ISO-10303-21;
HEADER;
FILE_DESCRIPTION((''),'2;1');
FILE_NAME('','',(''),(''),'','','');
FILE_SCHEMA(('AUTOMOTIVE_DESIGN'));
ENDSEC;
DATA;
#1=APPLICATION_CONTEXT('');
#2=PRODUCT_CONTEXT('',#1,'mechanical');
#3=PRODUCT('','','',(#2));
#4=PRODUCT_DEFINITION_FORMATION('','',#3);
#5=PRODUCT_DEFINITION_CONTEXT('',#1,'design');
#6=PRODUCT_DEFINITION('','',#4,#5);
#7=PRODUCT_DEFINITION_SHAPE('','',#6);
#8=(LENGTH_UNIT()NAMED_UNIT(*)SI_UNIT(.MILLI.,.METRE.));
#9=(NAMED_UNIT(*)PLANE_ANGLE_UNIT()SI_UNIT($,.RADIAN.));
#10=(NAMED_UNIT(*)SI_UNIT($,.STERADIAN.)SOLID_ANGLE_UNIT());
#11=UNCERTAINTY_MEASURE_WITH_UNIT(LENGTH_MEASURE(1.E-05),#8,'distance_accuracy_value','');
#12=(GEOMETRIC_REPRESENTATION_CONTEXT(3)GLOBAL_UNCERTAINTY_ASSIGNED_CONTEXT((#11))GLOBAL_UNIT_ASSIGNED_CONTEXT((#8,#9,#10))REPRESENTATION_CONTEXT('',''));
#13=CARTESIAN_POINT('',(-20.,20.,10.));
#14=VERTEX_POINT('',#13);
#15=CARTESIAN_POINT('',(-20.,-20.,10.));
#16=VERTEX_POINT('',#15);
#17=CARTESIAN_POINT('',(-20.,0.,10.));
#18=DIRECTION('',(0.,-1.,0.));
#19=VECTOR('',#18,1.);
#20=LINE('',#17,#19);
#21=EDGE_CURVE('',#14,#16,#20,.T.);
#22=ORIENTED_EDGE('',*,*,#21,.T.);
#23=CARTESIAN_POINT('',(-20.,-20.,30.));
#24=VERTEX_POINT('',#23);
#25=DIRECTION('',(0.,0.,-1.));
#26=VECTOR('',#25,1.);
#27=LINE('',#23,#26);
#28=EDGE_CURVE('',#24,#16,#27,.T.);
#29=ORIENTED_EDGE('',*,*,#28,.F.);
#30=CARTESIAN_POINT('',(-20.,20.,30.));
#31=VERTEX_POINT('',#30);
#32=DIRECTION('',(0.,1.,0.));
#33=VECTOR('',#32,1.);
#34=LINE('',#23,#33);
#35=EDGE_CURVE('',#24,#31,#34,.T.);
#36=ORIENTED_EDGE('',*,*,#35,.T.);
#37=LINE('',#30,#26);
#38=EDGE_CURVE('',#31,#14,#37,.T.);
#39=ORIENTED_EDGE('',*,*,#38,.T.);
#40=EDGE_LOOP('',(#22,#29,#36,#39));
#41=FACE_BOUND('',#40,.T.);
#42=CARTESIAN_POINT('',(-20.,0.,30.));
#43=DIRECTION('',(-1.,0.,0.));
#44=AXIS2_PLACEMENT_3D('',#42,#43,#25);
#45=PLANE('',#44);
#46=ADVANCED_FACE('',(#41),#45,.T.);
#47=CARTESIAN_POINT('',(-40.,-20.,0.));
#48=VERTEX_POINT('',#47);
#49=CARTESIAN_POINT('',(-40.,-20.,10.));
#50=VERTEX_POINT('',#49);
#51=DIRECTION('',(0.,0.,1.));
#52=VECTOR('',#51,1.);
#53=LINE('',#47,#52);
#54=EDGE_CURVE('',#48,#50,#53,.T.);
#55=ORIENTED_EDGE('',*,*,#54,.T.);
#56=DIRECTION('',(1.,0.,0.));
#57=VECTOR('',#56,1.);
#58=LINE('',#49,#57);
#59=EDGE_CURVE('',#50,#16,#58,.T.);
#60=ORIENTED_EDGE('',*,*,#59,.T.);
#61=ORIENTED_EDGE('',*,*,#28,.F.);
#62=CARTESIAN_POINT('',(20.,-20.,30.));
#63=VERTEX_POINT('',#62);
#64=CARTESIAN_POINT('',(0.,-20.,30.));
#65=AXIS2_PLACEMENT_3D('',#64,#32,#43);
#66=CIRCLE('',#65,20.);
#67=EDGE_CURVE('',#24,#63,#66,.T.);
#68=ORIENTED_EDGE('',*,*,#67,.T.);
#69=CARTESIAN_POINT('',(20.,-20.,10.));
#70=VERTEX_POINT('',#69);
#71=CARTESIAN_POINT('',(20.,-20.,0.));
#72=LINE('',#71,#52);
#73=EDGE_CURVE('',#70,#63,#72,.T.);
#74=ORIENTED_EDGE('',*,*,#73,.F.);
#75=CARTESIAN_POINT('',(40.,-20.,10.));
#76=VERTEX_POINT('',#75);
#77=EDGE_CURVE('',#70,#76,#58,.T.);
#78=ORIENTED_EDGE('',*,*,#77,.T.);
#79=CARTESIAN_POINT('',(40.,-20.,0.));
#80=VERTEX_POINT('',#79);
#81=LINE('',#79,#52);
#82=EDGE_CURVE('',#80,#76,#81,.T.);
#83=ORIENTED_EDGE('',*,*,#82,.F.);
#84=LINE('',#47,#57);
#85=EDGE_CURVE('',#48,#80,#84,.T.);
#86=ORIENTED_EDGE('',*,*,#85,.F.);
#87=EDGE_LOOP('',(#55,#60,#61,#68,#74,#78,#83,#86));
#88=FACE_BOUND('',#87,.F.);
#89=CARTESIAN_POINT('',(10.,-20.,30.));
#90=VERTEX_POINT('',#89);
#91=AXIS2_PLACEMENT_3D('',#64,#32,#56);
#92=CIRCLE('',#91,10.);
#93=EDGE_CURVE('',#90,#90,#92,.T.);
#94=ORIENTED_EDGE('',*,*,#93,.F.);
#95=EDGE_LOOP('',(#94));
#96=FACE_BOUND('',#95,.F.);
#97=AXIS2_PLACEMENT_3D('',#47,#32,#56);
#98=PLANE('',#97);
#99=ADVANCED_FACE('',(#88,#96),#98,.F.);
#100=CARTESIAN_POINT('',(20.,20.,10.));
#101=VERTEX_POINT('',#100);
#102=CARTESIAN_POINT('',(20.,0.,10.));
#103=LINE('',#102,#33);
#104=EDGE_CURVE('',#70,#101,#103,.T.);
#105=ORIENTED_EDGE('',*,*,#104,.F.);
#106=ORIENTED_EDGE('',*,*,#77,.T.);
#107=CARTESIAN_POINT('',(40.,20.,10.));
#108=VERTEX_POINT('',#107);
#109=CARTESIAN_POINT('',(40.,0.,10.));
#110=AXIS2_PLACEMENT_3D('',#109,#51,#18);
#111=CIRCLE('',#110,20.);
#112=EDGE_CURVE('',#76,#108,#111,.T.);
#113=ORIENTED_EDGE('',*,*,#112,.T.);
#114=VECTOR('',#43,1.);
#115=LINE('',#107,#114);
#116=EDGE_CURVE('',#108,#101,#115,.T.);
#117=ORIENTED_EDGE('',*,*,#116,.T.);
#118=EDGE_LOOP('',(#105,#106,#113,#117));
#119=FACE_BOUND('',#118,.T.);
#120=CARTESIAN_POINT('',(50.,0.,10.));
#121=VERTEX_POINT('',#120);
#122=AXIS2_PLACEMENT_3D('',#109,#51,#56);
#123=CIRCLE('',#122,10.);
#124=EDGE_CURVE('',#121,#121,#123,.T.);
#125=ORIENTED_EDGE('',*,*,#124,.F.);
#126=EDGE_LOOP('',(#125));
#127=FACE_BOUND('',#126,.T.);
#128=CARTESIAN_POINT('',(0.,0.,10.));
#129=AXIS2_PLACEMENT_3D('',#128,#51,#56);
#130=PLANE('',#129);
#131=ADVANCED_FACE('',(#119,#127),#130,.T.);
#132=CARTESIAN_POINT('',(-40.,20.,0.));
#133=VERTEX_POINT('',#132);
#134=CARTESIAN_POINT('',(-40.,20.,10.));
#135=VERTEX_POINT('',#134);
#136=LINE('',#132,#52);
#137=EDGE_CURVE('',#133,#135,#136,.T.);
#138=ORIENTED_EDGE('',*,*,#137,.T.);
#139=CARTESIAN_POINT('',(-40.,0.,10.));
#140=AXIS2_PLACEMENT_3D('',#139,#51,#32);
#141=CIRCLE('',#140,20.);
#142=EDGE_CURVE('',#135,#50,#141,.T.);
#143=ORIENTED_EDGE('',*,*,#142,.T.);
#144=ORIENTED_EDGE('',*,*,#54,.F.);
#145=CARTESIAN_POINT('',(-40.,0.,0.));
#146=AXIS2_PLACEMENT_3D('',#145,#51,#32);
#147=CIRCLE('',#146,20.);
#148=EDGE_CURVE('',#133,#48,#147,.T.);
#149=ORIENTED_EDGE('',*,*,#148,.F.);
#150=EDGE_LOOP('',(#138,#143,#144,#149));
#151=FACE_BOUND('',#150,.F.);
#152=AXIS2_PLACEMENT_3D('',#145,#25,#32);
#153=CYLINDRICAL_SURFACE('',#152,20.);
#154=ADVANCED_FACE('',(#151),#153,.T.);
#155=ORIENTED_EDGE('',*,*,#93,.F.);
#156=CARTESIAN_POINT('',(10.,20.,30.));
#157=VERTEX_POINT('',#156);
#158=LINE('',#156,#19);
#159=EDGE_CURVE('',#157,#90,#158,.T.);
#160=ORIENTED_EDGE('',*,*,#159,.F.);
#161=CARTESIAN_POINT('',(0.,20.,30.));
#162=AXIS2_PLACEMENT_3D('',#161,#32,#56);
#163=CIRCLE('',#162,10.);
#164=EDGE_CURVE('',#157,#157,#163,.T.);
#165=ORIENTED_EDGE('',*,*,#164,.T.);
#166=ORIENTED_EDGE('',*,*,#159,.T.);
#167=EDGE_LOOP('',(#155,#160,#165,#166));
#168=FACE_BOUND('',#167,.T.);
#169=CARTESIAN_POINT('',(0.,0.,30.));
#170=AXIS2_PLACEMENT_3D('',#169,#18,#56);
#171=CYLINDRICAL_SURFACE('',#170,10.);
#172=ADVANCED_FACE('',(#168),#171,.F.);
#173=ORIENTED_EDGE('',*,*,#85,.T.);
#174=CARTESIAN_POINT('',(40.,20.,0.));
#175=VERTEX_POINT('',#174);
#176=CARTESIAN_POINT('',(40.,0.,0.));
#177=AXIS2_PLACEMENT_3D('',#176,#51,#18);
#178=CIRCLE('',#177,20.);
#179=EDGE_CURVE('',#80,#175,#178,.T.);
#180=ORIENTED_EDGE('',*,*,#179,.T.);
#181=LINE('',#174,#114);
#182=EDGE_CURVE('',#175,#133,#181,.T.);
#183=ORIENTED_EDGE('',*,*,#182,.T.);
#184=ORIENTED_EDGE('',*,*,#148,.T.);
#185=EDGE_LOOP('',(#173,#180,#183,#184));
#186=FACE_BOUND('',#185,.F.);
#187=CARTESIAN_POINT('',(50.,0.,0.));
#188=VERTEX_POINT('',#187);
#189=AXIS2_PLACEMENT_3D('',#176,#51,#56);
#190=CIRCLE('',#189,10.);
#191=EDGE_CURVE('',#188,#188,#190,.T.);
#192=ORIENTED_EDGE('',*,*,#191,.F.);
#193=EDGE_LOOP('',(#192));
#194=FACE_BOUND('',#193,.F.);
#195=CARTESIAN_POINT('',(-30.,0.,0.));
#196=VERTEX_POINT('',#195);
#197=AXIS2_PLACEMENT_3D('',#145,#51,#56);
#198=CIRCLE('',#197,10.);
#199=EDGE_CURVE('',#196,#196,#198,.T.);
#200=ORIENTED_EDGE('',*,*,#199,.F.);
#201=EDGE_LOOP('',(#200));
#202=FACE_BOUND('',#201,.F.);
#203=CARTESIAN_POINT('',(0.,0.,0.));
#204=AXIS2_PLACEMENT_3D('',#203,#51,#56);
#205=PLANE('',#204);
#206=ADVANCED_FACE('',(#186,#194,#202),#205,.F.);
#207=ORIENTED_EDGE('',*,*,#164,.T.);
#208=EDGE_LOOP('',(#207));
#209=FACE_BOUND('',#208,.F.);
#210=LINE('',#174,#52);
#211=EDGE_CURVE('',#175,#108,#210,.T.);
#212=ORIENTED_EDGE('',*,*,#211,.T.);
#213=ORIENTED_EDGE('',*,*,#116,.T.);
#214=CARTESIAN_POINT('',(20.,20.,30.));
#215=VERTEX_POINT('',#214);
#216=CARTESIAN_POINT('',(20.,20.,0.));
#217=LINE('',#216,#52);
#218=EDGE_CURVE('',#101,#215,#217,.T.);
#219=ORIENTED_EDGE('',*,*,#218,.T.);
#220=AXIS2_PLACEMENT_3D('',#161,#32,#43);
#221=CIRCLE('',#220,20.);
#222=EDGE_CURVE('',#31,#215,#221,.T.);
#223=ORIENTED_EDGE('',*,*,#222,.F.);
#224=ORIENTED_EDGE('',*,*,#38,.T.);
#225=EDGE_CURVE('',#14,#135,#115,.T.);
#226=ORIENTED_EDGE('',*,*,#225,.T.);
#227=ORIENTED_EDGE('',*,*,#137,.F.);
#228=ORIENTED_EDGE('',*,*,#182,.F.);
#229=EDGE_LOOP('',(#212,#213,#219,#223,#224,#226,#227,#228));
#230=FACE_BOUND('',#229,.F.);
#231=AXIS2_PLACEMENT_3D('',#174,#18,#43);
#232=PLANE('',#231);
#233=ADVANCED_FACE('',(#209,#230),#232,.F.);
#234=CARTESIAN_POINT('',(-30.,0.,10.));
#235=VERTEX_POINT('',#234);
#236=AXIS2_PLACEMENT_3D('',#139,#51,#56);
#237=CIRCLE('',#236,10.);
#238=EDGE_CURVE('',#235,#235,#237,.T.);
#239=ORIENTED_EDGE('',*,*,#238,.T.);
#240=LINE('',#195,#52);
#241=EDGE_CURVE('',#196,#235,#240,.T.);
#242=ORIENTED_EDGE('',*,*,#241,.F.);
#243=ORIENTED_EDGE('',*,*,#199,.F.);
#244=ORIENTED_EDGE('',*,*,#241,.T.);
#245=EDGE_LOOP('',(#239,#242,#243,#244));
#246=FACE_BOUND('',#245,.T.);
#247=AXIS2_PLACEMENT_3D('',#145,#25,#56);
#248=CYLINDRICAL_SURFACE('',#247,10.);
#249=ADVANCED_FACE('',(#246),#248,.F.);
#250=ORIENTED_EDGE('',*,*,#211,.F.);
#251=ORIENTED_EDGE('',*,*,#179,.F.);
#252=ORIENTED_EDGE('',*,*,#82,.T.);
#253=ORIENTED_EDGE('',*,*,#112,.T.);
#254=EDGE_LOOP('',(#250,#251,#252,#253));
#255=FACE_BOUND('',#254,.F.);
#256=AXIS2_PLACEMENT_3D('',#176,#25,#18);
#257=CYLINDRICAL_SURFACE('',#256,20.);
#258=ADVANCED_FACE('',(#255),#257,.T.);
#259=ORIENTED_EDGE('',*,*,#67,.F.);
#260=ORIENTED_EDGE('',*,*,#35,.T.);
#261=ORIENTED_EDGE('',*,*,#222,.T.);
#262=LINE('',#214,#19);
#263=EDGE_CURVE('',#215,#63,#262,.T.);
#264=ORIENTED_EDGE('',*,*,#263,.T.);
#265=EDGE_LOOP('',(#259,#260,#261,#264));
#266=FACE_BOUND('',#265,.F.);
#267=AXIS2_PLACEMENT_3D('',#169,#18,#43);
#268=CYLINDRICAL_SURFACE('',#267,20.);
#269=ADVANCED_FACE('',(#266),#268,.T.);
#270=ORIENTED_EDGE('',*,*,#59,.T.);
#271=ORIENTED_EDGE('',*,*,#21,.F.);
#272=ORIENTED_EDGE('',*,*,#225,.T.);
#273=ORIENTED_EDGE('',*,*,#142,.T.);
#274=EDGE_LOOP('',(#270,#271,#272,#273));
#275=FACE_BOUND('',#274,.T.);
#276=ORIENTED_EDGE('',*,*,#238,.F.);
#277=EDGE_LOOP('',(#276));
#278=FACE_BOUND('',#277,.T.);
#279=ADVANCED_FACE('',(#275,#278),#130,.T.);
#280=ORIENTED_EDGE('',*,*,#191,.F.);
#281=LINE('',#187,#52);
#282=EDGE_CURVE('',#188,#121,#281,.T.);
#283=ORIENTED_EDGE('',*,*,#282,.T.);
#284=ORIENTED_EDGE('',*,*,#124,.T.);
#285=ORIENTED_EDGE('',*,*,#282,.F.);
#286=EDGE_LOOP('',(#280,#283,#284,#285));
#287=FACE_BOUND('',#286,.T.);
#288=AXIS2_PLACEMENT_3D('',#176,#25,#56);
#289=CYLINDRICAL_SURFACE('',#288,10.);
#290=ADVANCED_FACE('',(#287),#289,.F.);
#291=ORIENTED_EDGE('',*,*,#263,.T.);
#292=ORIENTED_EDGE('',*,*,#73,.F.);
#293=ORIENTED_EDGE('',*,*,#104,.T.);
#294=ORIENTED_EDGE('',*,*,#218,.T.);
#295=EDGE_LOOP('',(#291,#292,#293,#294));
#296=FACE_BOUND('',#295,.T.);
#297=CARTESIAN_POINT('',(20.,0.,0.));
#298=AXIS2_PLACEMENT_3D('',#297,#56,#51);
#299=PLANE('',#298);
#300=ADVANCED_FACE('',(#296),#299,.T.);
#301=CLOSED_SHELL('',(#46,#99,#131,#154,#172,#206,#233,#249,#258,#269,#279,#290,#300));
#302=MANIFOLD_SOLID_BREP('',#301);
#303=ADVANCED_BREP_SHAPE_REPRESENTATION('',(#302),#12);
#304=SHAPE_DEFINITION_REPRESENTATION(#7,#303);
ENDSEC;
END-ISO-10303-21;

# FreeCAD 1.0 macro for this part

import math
import FreeCAD as App
import Part
import Sketcher

V = App.Vector
Q = App.Units.Quantity

doc = App.newDocument("Part")
body = doc.addObject("PartDesign::Body", "Body")

sketch1 = body.newObject("Sketcher::SketchObject", "Sketch")
sketch1.AttachmentSupport = (doc.getObject("XY_Plane"), [""])
sketch1.MapMode = "FlatFace"
sketch1.addGeometry([
    Part.ArcOfCircle(Part.Circle(V(40, 0, 0), V(0, 0, 1), 20), math.radians(-90), math.radians(90)),
    Part.LineSegment(V(40, 20, 0), V(-40, 20, 0)),
    Part.ArcOfCircle(Part.Circle(V(-40, 0, 0), V(0, 0, 1), 20), math.radians(90), math.radians(270)),
    Part.LineSegment(V(-40, -20, 0), V(40, -20, 0)),
    Part.Circle(V(-40, 0, 0), V(0, 0, 1), 10),
    Part.Circle(V(40, 0, 0), V(0, 0, 1), 10),
], False)
sketch1.addConstraint([
    Sketcher.Constraint("Tangent", 0, 2, 1, 1),
    Sketcher.Constraint("Tangent", 1, 2, 2, 1),
    Sketcher.Constraint("Tangent", 2, 2, 3, 1),
    Sketcher.Constraint("Tangent", 3, 2, 0, 1),
    Sketcher.Constraint("Horizontal", 1),
    Sketcher.Constraint("Horizontal", 3),
    Sketcher.Constraint("Coincident", 4, 3, 2, 3),
    Sketcher.Constraint("Coincident", 5, 3, 0, 3),
    Sketcher.Constraint("Equal", 4, 5),
    Sketcher.Constraint("Symmetric", 0, 3, 2, 3, -1, 1),
    Sketcher.Constraint("Radius", 0, Q("20 mm")),
    Sketcher.Constraint("DistanceX", 1, 2, 1, 1, Q("80 mm")),
    Sketcher.Constraint("Diameter", 4, Q("20 mm")),
])
pad1 = body.newObject("PartDesign::Pad", "Pad")
pad1.Profile = sketch1
pad1.Length = 10

sketch2 = body.newObject("Sketcher::SketchObject", "Sketch001")
sketch2.AttachmentSupport = (doc.getObject("XZ_Plane"), [""])
sketch2.MapMode = "FlatFace"
sketch2.addGeometry([
    Part.LineSegment(V(20, 0, 0), V(-20, 0, 0)),
    Part.LineSegment(V(-20, 0, 0), V(-20, 30, 0)),
    Part.ArcOfCircle(Part.Circle(V(0, 30, 0), V(0, 0, 1), 20), math.radians(0), math.radians(180)),
    Part.LineSegment(V(20, 30, 0), V(20, 0, 0)),
    Part.Circle(V(0, 30, 0), V(0, 0, 1), 10),
], False)
sketch2.addConstraint([
    Sketcher.Constraint("Coincident", 0, 2, 1, 1),
    Sketcher.Constraint("Tangent", 1, 2, 2, 2),
    Sketcher.Constraint("Tangent", 2, 1, 3, 1),
    Sketcher.Constraint("Coincident", 3, 2, 0, 1),
    Sketcher.Constraint("Horizontal", 0),
    Sketcher.Constraint("Vertical", 1),
    Sketcher.Constraint("Vertical", 3),
    Sketcher.Constraint("Coincident", 4, 3, 2, 3),
    Sketcher.Constraint("Symmetric", 0, 2, 3, 2, -1, 1),
    Sketcher.Constraint("Diameter", 4, Q("20 mm")),
    Sketcher.Constraint("Radius", 2, Q("20 mm")),
    Sketcher.Constraint("DistanceY", 1, 1, 1, 2, Q("30 mm")),
])
pad2 = body.newObject("PartDesign::Pad", "Pad001")
pad2.Profile = sketch2
pad2.Length = 40
pad2.Midplane = True

doc.recompute()
